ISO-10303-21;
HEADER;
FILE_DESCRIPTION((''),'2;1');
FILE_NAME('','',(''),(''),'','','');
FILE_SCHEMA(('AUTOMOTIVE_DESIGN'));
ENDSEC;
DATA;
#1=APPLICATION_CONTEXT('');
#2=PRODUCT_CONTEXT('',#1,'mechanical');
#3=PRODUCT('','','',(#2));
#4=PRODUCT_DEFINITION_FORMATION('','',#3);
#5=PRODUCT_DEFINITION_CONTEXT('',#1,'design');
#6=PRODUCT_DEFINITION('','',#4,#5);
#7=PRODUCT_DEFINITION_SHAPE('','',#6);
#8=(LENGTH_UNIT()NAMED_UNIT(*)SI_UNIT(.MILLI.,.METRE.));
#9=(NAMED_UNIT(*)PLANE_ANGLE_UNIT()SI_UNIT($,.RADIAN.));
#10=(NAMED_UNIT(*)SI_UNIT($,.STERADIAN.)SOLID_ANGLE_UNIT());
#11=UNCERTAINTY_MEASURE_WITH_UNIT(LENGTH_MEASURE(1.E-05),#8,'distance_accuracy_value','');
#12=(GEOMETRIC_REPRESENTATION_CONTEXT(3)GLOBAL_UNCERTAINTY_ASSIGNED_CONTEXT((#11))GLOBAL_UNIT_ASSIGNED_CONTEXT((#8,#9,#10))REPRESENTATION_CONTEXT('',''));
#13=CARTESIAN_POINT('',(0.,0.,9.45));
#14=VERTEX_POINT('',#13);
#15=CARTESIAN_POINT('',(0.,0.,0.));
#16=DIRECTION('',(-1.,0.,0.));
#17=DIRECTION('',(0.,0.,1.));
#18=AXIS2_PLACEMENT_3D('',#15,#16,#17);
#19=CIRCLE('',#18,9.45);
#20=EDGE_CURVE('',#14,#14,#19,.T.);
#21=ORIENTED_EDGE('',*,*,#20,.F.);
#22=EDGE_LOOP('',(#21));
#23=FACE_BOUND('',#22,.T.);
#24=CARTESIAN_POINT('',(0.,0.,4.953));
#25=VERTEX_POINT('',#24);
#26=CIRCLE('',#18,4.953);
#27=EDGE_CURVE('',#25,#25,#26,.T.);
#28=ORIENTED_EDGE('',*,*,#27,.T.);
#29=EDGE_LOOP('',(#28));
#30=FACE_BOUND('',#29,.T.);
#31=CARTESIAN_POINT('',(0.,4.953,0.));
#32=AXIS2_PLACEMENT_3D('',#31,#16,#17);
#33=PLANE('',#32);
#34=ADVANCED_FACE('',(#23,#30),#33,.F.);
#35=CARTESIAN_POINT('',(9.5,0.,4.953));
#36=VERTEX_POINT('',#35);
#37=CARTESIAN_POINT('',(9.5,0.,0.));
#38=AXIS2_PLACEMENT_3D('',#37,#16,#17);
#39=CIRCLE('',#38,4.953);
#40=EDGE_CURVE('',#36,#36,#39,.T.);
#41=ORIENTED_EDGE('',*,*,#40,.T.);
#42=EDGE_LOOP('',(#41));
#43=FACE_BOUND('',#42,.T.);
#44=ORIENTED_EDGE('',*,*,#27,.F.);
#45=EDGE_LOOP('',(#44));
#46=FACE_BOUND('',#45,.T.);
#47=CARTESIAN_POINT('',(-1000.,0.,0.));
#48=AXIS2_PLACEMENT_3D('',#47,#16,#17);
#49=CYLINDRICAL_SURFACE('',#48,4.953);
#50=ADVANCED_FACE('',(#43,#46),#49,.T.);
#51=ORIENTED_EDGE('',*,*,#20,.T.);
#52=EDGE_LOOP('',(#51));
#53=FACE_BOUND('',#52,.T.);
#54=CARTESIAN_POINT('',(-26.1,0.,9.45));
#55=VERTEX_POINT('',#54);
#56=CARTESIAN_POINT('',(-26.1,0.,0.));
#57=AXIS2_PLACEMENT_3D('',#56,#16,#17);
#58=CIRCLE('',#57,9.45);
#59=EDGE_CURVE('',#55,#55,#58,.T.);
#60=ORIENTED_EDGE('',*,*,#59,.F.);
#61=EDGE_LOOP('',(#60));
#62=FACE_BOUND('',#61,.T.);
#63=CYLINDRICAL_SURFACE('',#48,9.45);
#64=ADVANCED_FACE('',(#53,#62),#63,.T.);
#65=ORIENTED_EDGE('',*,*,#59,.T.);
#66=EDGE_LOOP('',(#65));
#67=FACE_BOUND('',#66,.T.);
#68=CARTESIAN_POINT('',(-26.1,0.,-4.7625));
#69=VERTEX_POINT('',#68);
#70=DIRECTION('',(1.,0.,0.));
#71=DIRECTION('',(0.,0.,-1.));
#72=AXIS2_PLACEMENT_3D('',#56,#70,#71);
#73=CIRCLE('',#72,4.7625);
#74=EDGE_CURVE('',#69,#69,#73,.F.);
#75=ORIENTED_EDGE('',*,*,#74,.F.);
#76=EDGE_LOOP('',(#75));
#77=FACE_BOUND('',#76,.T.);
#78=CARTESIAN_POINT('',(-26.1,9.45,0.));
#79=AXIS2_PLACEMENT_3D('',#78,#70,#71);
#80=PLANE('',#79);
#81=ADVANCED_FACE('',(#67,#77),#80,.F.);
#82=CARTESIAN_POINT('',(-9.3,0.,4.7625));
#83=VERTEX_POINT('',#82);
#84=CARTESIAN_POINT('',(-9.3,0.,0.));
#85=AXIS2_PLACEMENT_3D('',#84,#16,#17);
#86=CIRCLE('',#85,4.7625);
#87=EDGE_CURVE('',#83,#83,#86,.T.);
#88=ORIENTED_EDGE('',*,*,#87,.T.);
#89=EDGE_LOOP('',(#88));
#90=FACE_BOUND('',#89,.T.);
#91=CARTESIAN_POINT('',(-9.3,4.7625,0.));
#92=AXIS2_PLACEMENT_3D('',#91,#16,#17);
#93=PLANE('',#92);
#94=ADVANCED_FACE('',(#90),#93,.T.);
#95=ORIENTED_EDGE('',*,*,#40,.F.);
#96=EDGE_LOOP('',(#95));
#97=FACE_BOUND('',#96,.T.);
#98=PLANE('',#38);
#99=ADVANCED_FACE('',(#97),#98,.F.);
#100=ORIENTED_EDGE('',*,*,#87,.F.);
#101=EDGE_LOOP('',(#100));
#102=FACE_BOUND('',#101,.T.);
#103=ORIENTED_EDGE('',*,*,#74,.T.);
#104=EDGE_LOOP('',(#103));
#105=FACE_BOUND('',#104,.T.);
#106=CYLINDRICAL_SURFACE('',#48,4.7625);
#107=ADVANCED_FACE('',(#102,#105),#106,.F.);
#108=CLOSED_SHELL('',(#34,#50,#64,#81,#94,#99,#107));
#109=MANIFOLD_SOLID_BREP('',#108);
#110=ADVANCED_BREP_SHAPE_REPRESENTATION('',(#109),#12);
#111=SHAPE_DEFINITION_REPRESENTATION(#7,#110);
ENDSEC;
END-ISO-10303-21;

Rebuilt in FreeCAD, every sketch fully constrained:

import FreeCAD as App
import Part
import Sketcher


def add_polygon(sketch, points):
    """Adds a closed chain of lines whose ends are joined by coincident constraints."""
    first, n = sketch.GeometryCount, len(points)
    for a, b in zip(points, points[1:] + points[:1]):
        sketch.addGeometry(Part.LineSegment(App.Vector(*a, 0), App.Vector(*b, 0)), False)
    for i in range(n):
        sketch.addConstraint(Sketcher.Constraint("Coincident", first + i, 2, first + (i + 1) % n, 1))

doc = App.newDocument("Part")
body = doc.addObject("PartDesign::Body", "Body")

sketch1 = doc.addObject("Sketcher::SketchObject", "Sketch")
body.addObject(sketch1)
sketch1.AttachmentSupport = (doc.XY_Plane, [""])
sketch1.MapMode = "FlatFace"
add_polygon(sketch1, [(9.5, 0), (9.5, 4.953), (0, 4.953), (0, 9.45), (-26.1, 9.45), (-26.1, 0)])
sketch1.addConstraint([
    Sketcher.Constraint("Vertical", 0),
    Sketcher.Constraint("Horizontal", 1),
    Sketcher.Constraint("Vertical", 2),
    Sketcher.Constraint("Horizontal", 3),
    Sketcher.Constraint("Vertical", 4),
    Sketcher.Constraint("Horizontal", 5),
    Sketcher.Constraint("PointOnObject", 1, 2, -2),
    Sketcher.Constraint("PointOnObject", 4, 2, -1),
    Sketcher.Constraint("DistanceX", 1, 2, 1, 1, 9.5),
    Sketcher.Constraint("DistanceX", 3, 2, 3, 1, 26.1),
    Sketcher.Constraint("DistanceY", 4, 2, 4, 1, 9.45),
    Sketcher.Constraint("DistanceY", 0, 1, 0, 2, 4.953),
])
revolution = doc.addObject("PartDesign::Revolution", "Revolution")
body.addObject(revolution)
revolution.Profile = sketch1
revolution.ReferenceAxis = (sketch1, ["H_Axis"])
revolution.Angle = 360

sketch2 = doc.addObject("Sketcher::SketchObject", "Sketch001")
body.addObject(sketch2)
sketch2.AttachmentSupport = (doc.XY_Plane, [""])
sketch2.MapMode = "FlatFace"
add_polygon(sketch2, [(-27.1, 4.7625), (-27.1, 0), (-9.3, 0), (-9.3, 4.7625)])
sketch2.addConstraint([
    Sketcher.Constraint("Vertical", 0),
    Sketcher.Constraint("Horizontal", 1),
    Sketcher.Constraint("Vertical", 2),
    Sketcher.Constraint("Horizontal", 3),
    Sketcher.Constraint("PointOnObject", 0, 2, -1),
    Sketcher.Constraint("DistanceX", 1, 1, 1, 2, 17.8),
    Sketcher.Constraint("DistanceX", 0, 2, -1, 1, 27.1),
    Sketcher.Constraint("DistanceY", 0, 2, 0, 1, 4.7625),
])
groove = doc.addObject("PartDesign::Groove", "Groove")
body.addObject(groove)
groove.Profile = sketch2
groove.ReferenceAxis = (sketch2, ["H_Axis"])
groove.Angle = 360

doc.recompute()
